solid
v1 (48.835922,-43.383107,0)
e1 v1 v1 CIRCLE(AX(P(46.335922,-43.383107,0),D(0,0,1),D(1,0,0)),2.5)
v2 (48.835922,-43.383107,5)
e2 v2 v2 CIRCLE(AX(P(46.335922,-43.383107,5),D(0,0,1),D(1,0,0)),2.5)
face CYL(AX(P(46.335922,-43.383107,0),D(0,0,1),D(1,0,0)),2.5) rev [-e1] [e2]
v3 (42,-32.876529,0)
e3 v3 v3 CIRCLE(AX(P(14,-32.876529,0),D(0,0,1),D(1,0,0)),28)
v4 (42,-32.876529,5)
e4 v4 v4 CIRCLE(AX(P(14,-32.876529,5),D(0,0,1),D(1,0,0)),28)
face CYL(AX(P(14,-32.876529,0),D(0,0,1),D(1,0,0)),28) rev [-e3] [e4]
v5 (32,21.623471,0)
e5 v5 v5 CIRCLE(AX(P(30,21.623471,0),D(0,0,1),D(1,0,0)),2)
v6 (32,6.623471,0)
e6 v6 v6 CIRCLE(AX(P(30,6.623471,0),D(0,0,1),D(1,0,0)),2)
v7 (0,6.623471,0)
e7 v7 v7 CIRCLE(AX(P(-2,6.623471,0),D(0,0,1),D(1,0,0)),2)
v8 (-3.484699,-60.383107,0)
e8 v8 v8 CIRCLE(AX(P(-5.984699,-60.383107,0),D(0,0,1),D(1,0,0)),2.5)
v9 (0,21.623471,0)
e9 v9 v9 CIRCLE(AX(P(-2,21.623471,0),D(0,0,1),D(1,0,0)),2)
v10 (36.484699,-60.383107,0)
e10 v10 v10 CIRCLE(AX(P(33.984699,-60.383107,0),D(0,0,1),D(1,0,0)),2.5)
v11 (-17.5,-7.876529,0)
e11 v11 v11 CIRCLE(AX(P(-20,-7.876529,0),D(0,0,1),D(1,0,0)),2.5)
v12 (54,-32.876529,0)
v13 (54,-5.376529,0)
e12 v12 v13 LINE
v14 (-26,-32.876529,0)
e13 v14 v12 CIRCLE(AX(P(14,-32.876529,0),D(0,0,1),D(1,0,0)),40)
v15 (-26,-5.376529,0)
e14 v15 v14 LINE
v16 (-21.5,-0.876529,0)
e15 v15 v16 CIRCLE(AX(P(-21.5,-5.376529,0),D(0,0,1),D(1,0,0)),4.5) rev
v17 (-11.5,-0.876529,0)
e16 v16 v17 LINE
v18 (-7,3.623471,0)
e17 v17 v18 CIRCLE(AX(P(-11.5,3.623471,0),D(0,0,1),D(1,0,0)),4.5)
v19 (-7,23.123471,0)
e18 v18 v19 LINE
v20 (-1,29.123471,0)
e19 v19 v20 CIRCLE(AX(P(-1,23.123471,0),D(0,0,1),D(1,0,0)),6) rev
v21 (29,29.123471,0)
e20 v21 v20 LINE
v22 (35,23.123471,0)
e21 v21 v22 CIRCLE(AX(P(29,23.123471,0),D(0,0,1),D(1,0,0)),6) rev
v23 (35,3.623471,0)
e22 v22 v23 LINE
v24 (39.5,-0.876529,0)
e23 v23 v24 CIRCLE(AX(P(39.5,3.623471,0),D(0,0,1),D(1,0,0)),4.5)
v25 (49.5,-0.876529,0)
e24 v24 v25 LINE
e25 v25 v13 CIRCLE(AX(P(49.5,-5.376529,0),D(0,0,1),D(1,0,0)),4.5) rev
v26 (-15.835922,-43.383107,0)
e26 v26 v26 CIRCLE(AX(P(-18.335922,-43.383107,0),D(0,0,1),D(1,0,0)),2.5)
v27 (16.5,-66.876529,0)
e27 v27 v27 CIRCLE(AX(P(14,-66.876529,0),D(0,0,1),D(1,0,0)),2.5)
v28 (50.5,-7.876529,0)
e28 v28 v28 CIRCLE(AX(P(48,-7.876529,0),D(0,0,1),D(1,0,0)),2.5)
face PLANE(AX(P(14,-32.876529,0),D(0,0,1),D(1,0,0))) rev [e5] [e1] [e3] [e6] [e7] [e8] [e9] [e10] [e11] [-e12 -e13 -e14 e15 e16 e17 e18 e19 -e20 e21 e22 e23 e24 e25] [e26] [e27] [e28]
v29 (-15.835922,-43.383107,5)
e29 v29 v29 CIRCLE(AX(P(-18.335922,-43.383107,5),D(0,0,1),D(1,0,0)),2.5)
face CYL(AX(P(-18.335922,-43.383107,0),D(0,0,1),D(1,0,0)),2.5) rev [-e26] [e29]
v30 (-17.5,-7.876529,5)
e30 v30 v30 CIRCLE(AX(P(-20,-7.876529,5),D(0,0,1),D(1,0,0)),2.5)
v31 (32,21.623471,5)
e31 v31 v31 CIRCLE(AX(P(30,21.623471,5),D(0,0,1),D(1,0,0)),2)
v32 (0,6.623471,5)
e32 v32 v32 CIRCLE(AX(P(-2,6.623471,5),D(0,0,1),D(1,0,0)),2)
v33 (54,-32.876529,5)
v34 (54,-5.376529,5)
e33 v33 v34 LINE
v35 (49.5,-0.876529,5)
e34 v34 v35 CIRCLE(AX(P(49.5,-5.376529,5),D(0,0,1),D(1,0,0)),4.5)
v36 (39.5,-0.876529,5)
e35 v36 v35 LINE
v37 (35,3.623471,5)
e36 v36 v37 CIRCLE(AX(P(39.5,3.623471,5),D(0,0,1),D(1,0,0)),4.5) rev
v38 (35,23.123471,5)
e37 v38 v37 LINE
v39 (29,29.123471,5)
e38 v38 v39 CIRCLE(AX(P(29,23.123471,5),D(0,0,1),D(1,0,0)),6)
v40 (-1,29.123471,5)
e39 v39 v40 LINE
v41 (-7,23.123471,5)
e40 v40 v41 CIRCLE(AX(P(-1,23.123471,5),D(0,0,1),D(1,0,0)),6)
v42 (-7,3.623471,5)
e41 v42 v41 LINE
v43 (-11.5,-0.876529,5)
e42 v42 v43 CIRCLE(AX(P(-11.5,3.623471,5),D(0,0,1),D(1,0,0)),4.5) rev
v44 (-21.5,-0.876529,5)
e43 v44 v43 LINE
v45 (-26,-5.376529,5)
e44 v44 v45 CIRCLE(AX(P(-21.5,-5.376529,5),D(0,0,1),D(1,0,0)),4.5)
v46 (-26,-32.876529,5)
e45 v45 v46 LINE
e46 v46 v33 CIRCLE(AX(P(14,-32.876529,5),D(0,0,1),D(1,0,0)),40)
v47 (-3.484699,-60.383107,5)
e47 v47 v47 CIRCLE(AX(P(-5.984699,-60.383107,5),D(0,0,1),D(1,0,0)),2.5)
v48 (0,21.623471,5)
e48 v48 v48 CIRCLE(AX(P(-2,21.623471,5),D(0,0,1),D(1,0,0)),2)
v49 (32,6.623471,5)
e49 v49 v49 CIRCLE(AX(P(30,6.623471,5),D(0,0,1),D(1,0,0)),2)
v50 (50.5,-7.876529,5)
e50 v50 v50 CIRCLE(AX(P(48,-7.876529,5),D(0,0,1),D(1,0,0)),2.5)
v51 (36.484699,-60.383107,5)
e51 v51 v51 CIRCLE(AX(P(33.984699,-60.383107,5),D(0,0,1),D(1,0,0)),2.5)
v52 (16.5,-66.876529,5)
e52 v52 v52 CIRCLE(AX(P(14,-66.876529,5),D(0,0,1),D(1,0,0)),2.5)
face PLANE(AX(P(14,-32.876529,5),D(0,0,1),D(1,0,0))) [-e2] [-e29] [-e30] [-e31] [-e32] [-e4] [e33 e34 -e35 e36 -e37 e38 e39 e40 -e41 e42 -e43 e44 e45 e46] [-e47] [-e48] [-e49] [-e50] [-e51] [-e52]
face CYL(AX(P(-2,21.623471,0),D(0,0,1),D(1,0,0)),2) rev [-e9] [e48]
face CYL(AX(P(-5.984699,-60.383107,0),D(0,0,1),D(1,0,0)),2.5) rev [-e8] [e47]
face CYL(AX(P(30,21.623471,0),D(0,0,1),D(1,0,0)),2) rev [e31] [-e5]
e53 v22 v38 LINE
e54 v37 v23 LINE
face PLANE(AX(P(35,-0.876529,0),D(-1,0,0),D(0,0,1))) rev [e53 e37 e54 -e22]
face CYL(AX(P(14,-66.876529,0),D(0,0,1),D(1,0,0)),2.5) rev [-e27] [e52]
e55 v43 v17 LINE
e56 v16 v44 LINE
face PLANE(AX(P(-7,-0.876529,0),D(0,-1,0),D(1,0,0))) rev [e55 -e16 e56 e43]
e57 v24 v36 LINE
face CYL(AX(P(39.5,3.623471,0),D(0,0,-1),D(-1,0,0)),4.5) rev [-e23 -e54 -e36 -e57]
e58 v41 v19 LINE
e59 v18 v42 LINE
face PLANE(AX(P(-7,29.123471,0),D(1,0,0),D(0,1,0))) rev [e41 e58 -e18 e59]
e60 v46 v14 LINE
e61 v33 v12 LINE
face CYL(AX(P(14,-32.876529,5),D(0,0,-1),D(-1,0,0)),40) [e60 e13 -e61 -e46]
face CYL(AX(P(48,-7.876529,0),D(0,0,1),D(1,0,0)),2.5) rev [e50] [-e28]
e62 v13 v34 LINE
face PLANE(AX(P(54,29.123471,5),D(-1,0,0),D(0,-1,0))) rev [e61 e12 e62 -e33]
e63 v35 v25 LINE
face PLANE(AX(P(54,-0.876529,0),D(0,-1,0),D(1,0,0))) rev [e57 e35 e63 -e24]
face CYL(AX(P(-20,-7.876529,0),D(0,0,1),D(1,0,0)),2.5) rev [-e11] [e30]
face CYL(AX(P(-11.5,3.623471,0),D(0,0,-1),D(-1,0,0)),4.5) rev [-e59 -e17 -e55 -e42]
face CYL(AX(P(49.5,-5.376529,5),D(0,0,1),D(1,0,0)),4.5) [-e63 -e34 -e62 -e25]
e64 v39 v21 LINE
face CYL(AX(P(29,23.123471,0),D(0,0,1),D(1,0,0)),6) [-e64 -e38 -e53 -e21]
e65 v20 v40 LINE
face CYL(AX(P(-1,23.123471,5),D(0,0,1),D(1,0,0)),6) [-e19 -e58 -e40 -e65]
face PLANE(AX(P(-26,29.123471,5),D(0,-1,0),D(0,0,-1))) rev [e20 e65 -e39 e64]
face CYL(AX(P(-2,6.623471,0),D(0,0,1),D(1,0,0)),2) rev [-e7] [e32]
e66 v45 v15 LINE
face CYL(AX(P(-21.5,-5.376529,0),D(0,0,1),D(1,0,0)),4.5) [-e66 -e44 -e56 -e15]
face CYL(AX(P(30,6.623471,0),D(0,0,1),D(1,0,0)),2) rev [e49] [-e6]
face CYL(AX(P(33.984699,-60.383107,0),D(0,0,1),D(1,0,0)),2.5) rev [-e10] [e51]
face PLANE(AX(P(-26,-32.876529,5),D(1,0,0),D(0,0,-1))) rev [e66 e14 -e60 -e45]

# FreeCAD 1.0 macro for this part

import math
import FreeCAD as App
import Part
import Sketcher


def edges_at(feature, points):
    """Names of the edges that pass closest to the given points."""
    edges = feature.Shape.Edges
    near = lambda p: min(range(len(edges)), key=lambda i: edges[i].distToShape(Part.Vertex(*p))[0])
    return sorted({f"Edge{near(p) + 1}" for p in points})


def add_polygon(sketch, points):
    """Adds a closed chain of lines whose ends are joined by coincident constraints."""
    first, n = sketch.GeometryCount, len(points)
    for a, b in zip(points, points[1:] + points[:1]):
        sketch.addGeometry(Part.LineSegment(App.Vector(*a, 0), App.Vector(*b, 0)), False)
    for i in range(n):
        sketch.addConstraint(Sketcher.Constraint("Coincident", first + i, 2, first + (i + 1) % n, 1))

doc = App.newDocument("Part")
params = doc.addObject("Spreadsheet::Sheet", "Params")
for row, (alias, value) in enumerate([
    ("sketch1_radius", "40 mm"),
    ("sketch1_height", "62 mm"),
    ("pad1_length", "5 mm"),
    ("sketch2_diameter", "56 mm"),
    ("sketch3_width", "19 mm"),
    ("sketch3_height", "30 mm"),
    ("fillet_radius", "4.5 mm"),
    ("sketch4_width", "19 mm"),
    ("sketch4_height", "30 mm"),
    ("pocket3_length", "5 mm"),
    ("fillet2_radius", "4.5 mm"),
    ("sketch5_diameter", "5 mm"),
    ("fillet3_radius", "6 mm"),
    ("sketch6_diameter", "5 mm"),
    ("sketch7_diameter", "4 mm"),
], start=1):
    params.set(f"A{row}", alias)
    params.set(f"B{row}", "=" + value)
    params.setAlias(f"B{row}", alias)

body = doc.addObject("PartDesign::Body", "Body")

sketch1 = doc.addObject("Sketcher::SketchObject", "Sketch")
body.addObject(sketch1)
sketch1.AttachmentSupport = (doc.XY_Plane, [""])
sketch1.MapMode = "FlatFace"
sketch1.addGeometry([
    Part.LineSegment(App.Vector(54, 29, 0), App.Vector(-26, 29, 0)),
    Part.LineSegment(App.Vector(-26, 29, 0), App.Vector(-26, -33, 0)),
    Part.ArcOfCircle(Part.Circle(App.Vector(14, -33, 0), App.Vector(0, 0, 1), 40), math.radians(180), math.radians(360)),
    Part.LineSegment(App.Vector(54, -33, 0), App.Vector(54, 29, 0)),
], False)
sketch1.addConstraint([
    Sketcher.Constraint("Coincident", 0, 2, 1, 1),
    Sketcher.Constraint("Tangent", 1, 2, 2, 1),
    Sketcher.Constraint("Tangent", 2, 2, 3, 1),
    Sketcher.Constraint("Coincident", 3, 2, 0, 1),
    Sketcher.Constraint("Horizontal", 0),
    Sketcher.Constraint("Vertical", 1),
    Sketcher.Constraint("Vertical", 3),
    Sketcher.Constraint("Radius", 2, 40.0),
    Sketcher.Constraint("DistanceY", 1, 2, 1, 1, 62.0),
    Sketcher.Constraint("DistanceX", -1, 1, 2, 3, 14.0),
    Sketcher.Constraint("DistanceY", 2, 3, -1, 1, 32.876529),
])
sketch1.setExpression("Constraints[7]", "Params.sketch1_radius")
sketch1.setExpression("Constraints[8]", "Params.sketch1_height")
pad1 = doc.addObject("PartDesign::Pad", "Pad")
body.addObject(pad1)
pad1.Profile = sketch1
pad1.setExpression("Length", "Params.pad1_length")

sketch2 = doc.addObject("Sketcher::SketchObject", "Sketch001")
body.addObject(sketch2)
sketch2.AttachmentSupport = (doc.XY_Plane, [""])
sketch2.MapMode = "FlatFace"
sketch2.AttachmentOffset = App.Placement(App.Vector(0, 0, 5), App.Rotation())
sketch2.addGeometry(Part.Circle(App.Vector(14, -33, 0), App.Vector(0, 0, 1), 28), False)
sketch2.addConstraint([
    Sketcher.Constraint("Diameter", 0, 56.0),
    Sketcher.Constraint("DistanceX", -1, 1, 0, 3, 14.0),
    Sketcher.Constraint("DistanceY", 0, 3, -1, 1, 32.876529),
])
sketch2.setExpression("Constraints[0]", "Params.sketch2_diameter")
pocket1 = doc.addObject("PartDesign::Pocket", "Pocket")
body.addObject(pocket1)
pocket1.Profile = sketch2
pocket1.Type = "ThroughAll"

sketch3 = doc.addObject("Sketcher::SketchObject", "Sketch002")
body.addObject(sketch3)
sketch3.AttachmentSupport = (doc.XY_Plane, [""])
sketch3.MapMode = "FlatFace"
sketch3.AttachmentOffset = App.Placement(App.Vector(0, 0, 5), App.Rotation())
add_polygon(sketch3, [(35, 29), (35, -1), (54, -1), (54, 29)])
sketch3.addConstraint([
    Sketcher.Constraint("Vertical", 0),
    Sketcher.Constraint("Horizontal", 1),
    Sketcher.Constraint("Vertical", 2),
    Sketcher.Constraint("Horizontal", 3),
    Sketcher.Constraint("DistanceX", 1, 1, 1, 2, 19.0),
    Sketcher.Constraint("DistanceY", 0, 2, 0, 1, 30.0),
    Sketcher.Constraint("DistanceX", -1, 1, 0, 2, 35.0),
    Sketcher.Constraint("DistanceY", 0, 2, -1, 1, 0.876529),
])
sketch3.setExpression("Constraints[8]", "Params.sketch3_width")
sketch3.setExpression("Constraints[9]", "Params.sketch3_height")
pocket2 = doc.addObject("PartDesign::Pocket", "Pocket001")
body.addObject(pocket2)
pocket2.Profile = sketch3
pocket2.Type = "ThroughAll"
doc.recompute()

fillet = doc.addObject("PartDesign::Fillet", "Fillet")
body.addObject(fillet)
fillet.Base = (pocket2, edges_at(pocket2, [(54, -0.877, 2.5), (35, -0.877, 2.5)]))
fillet.setExpression("Radius", "Params.fillet_radius")

sketch4 = doc.addObject("Sketcher::SketchObject", "Sketch003")
body.addObject(sketch4)
sketch4.AttachmentSupport = (doc.XY_Plane, [""])
sketch4.MapMode = "FlatFace"
sketch4.AttachmentOffset = App.Placement(App.Vector(0, 0, 5), App.Rotation())
add_polygon(sketch4, [(-26, 29), (-26, -1), (-7, -1), (-7, 29)])
sketch4.addConstraint([
    Sketcher.Constraint("Vertical", 0),
    Sketcher.Constraint("Horizontal", 1),
    Sketcher.Constraint("Vertical", 2),
    Sketcher.Constraint("Horizontal", 3),
    Sketcher.Constraint("DistanceX", 1, 1, 1, 2, 19.0),
    Sketcher.Constraint("DistanceY", 0, 2, 0, 1, 30.0),
    Sketcher.Constraint("DistanceX", 0, 2, -1, 1, 26.0),
    Sketcher.Constraint("DistanceY", 0, 2, -1, 1, 0.876529),
])
sketch4.setExpression("Constraints[8]", "Params.sketch4_width")
sketch4.setExpression("Constraints[9]", "Params.sketch4_height")
pocket3 = doc.addObject("PartDesign::Pocket", "Pocket002")
body.addObject(pocket3)
pocket3.Profile = sketch4
pocket3.setExpression("Length", "Params.pocket3_length")
doc.recompute()

fillet2 = doc.addObject("PartDesign::Fillet", "Fillet001")
body.addObject(fillet2)
fillet2.Base = (pocket3, edges_at(pocket3, [(-26, -0.877, 2.5), (-7, -0.877, 2.5)]))
fillet2.setExpression("Radius", "Params.fillet2_radius")

sketch5 = doc.addObject("Sketcher::SketchObject", "Sketch004")
body.addObject(sketch5)
sketch5.AttachmentSupport = (doc.XY_Plane, [""])
sketch5.MapMode = "FlatFace"
sketch5.AttachmentOffset = App.Placement(App.Vector(0, 0, 5), App.Rotation())
sketch5.addGeometry([
    Part.Circle(App.Vector(-20, -7.9, 0), App.Vector(0, 0, 1), 2.5),
    Part.Circle(App.Vector(48, -7.9, 0), App.Vector(0, 0, 1), 2.5),
], False)
sketch5.addConstraint([
    Sketcher.Constraint("Equal", 0, 1),
    Sketcher.Constraint("Horizontal", 0, 3, 1, 3),
    Sketcher.Constraint("Diameter", 0, 5.0),
    Sketcher.Constraint("DistanceX", 0, 3, -1, 1, 20.0),
    Sketcher.Constraint("DistanceX", -1, 1, 1, 3, 48.0),
    Sketcher.Constraint("DistanceY", 0, 3, -1, 1, 7.876529),
])
sketch5.setExpression("Constraints[2]", "Params.sketch5_diameter")
pocket4 = doc.addObject("PartDesign::Pocket", "Pocket003")
body.addObject(pocket4)
pocket4.Profile = sketch5
pocket4.Type = "ThroughAll"
doc.recompute()

fillet3 = doc.addObject("PartDesign::Fillet", "Fillet002")
body.addObject(fillet3)
fillet3.Base = (pocket4, edges_at(pocket4, [(35, 29.123, 2.5), (-7, 29.123, 2.5)]))
fillet3.setExpression("Radius", "Params.fillet3_radius")

sketch6 = doc.addObject("Sketcher::SketchObject", "Sketch005")
body.addObject(sketch6)
sketch6.AttachmentSupport = (doc.XY_Plane, [""])
sketch6.MapMode = "FlatFace"
sketch6.AttachmentOffset = App.Placement(App.Vector(0, 0, 5), App.Rotation())
sketch6.addGeometry([
    Part.Circle(App.Vector(14, -66.9, 0), App.Vector(0, 0, 1), 2.5),
    Part.Circle(App.Vector(-6, -60.4, 0), App.Vector(0, 0, 1), 2.5),
    Part.Circle(App.Vector(-18.3, -43.4, 0), App.Vector(0, 0, 1), 2.5),
    Part.Circle(App.Vector(46.3, -43.4, 0), App.Vector(0, 0, 1), 2.5),
    Part.Circle(App.Vector(34, -60.4, 0), App.Vector(0, 0, 1), 2.5),
], False)
sketch6.addConstraint([
    Sketcher.Constraint("Equal", 0, 1),
    Sketcher.Constraint("Equal", 1, 2),
    Sketcher.Constraint("Equal", 2, 3),
    Sketcher.Constraint("Equal", 3, 4),
    Sketcher.Constraint("Horizontal", 2, 3, 3, 3),
    Sketcher.Constraint("Horizontal", 1, 3, 4, 3),
    Sketcher.Constraint("Diameter", 0, 5.0),
    Sketcher.Constraint("DistanceX", -1, 1, 0, 3, 14.0),
    Sketcher.Constraint("DistanceY", 1, 3, 2, 3, 17.0),
    Sketcher.Constraint("DistanceX", 1, 3, -1, 1, 5.984699),
    Sketcher.Constraint("DistanceX", -1, 1, 4, 3, 33.984699),
    Sketcher.Constraint("DistanceY", 0, 3, -1, 1, 66.876529),
    Sketcher.Constraint("DistanceX", 2, 3, -1, 1, 18.335922),
    Sketcher.Constraint("DistanceX", -1, 1, 3, 3, 46.335922),
    Sketcher.Constraint("DistanceY", 1, 3, -1, 1, 60.383107),
])
sketch6.setExpression("Constraints[6]", "Params.sketch6_diameter")
pocket5 = doc.addObject("PartDesign::Pocket", "Pocket004")
body.addObject(pocket5)
pocket5.Profile = sketch6
pocket5.Type = "ThroughAll"

sketch7 = doc.addObject("Sketcher::SketchObject", "Sketch006")
body.addObject(sketch7)
sketch7.AttachmentSupport = (doc.XY_Plane, [""])
sketch7.MapMode = "FlatFace"
sketch7.AttachmentOffset = App.Placement(App.Vector(0, 0, 5), App.Rotation())
sketch7.addGeometry([
    Part.Circle(App.Vector(-2, 6.6, 0), App.Vector(0, 0, 1), 2),
    Part.Circle(App.Vector(-2, 21.6, 0), App.Vector(0, 0, 1), 2),
    Part.Circle(App.Vector(30, 21.6, 0), App.Vector(0, 0, 1), 2),
    Part.Circle(App.Vector(30, 6.6, 0), App.Vector(0, 0, 1), 2),
], False)
sketch7.addConstraint([
    Sketcher.Constraint("Equal", 0, 1),
    Sketcher.Constraint("Equal", 1, 2),
    Sketcher.Constraint("Equal", 2, 3),
    Sketcher.Constraint("Horizontal", 1, 3, 2, 3),
    Sketcher.Constraint("Horizontal", 0, 3, 3, 3),
    Sketcher.Constraint("Vertical", 0, 3, 1, 3),
    Sketcher.Constraint("Vertical", 2, 3, 3, 3),
    Sketcher.Constraint("Diameter", 0, 4.0),
    Sketcher.Constraint("DistanceX", 0, 3, -1, 1, 2.0),
    Sketcher.Constraint("DistanceX", -1, 1, 2, 3, 30.0),
    Sketcher.Constraint("DistanceY", 0, 3, 1, 3, 15.0),
    Sketcher.Constraint("DistanceY", -1, 1, 0, 3, 6.623471),
])
sketch7.setExpression("Constraints[7]", "Params.sketch7_diameter")
pocket6 = doc.addObject("PartDesign::Pocket", "Pocket005")
body.addObject(pocket6)
pocket6.Profile = sketch7
pocket6.Type = "ThroughAll"

doc.recompute()
